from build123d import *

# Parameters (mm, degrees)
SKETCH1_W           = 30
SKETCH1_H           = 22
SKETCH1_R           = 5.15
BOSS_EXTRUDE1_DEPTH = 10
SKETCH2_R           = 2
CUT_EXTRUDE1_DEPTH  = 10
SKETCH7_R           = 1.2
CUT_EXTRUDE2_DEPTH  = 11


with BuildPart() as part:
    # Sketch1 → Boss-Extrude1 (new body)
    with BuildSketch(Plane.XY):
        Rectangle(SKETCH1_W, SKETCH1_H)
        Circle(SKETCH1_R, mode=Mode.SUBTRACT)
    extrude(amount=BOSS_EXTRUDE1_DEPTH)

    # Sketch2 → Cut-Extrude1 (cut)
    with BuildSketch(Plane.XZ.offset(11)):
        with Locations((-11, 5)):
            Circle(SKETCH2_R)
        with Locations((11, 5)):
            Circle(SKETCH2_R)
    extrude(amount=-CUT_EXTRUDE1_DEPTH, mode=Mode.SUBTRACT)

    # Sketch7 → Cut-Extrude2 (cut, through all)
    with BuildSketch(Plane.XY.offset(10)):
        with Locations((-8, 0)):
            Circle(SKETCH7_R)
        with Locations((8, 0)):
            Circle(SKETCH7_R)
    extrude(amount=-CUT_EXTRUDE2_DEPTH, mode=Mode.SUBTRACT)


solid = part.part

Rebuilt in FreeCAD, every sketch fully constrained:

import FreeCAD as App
import Part
import Sketcher

V = App.Vector

doc = App.newDocument("Part")
body = doc.addObject("PartDesign::Body", "Body")

# Sketch on XY plane
sketch1 = body.newObject("Sketcher::SketchObject", "Sketch")
sketch1.AttachmentSupport = (doc.getObject("XY_Plane"), [""])
sketch1.MapMode = "FlatFace"
sketch1.addGeometry(Part.LineSegment(V(-15, 11, 0), V(-15, -11, 0)), False)
sketch1.addGeometry(Part.LineSegment(V(-15, -11, 0), V(15, -11, 0)), False)
sketch1.addGeometry(Part.LineSegment(V(15, -11, 0), V(15, 11, 0)), False)
sketch1.addGeometry(Part.LineSegment(V(15, 11, 0), V(-15, 11, 0)), False)
sketch1.addGeometry(Part.Circle(V(0, 0, 0), V(0, 0, 1), 5), False)
sketch1.addConstraint(Sketcher.Constraint("Coincident", 0, 2, 1, 1))
sketch1.addConstraint(Sketcher.Constraint("Coincident", 1, 2, 2, 1))
sketch1.addConstraint(Sketcher.Constraint("Coincident", 2, 2, 3, 1))
sketch1.addConstraint(Sketcher.Constraint("Coincident", 3, 2, 0, 1))
sketch1.addConstraint(Sketcher.Constraint("Vertical", 0))
sketch1.addConstraint(Sketcher.Constraint("Horizontal", 1))
sketch1.addConstraint(Sketcher.Constraint("Vertical", 2))
sketch1.addConstraint(Sketcher.Constraint("Horizontal", 3))
sketch1.addConstraint(Sketcher.Constraint("Coincident", 4, 3, -1, 1))
sketch1.addConstraint(Sketcher.Constraint("Symmetric", 0, 2, 2, 2, -1, 1))
sketch1.addConstraint(Sketcher.Constraint("Diameter", 4, 10.3))
sketch1.addConstraint(Sketcher.Constraint("DistanceX", 1, 1, 1, 2, 30.0))
sketch1.addConstraint(Sketcher.Constraint("DistanceY", 0, 2, 0, 1, 22.0))
pad1 = body.newObject("PartDesign::Pad", "Pad")
pad1.Profile = sketch1
pad1.Length = 10

# Sketch on XZ plane
sketch2 = body.newObject("Sketcher::SketchObject", "Sketch001")
sketch2.AttachmentSupport = (doc.getObject("XZ_Plane"), [""])
sketch2.MapMode = "FlatFace"
sketch2.AttachmentOffset = App.Placement(V(0, 0, 11), App.Rotation())
sketch2.addGeometry(Part.Circle(V(-11, 5, 0), V(0, 0, 1), 2), False)
sketch2.addGeometry(Part.Circle(V(11, 5, 0), V(0, 0, 1), 2), False)
sketch2.addConstraint(Sketcher.Constraint("Equal", 0, 1))
sketch2.addConstraint(Sketcher.Constraint("Symmetric", 0, 3, 1, 3, -2))
sketch2.addConstraint(Sketcher.Constraint("Diameter", 0, 4.0))
sketch2.addConstraint(Sketcher.Constraint("DistanceX", 0, 3, -1, 1, 11.0))
sketch2.addConstraint(Sketcher.Constraint("DistanceY", -1, 1, 0, 3, 5.0))
pocket1 = body.newObject("PartDesign::Pocket", "Pocket")
pocket1.Profile = sketch2
pocket1.Length = 10

# Sketch on XY plane
sketch3 = body.newObject("Sketcher::SketchObject", "Sketch002")
sketch3.AttachmentSupport = (doc.getObject("XY_Plane"), [""])
sketch3.MapMode = "FlatFace"
sketch3.AttachmentOffset = App.Placement(V(0, 0, 10), App.Rotation())
sketch3.addGeometry(Part.Circle(V(-8, 0, 0), V(0, 0, 1), 1.2), False)
sketch3.addGeometry(Part.Circle(V(8, 0, 0), V(0, 0, 1), 1.2), False)
sketch3.addConstraint(Sketcher.Constraint("Equal", 0, 1))
sketch3.addConstraint(Sketcher.Constraint("Symmetric", 0, 3, 1, 3, -1, 1))
sketch3.addConstraint(Sketcher.Constraint("PointOnObject", 0, 3, -1))
sketch3.addConstraint(Sketcher.Constraint("Diameter", 0, 2.4))
sketch3.addConstraint(Sketcher.Constraint("DistanceX", 0, 3, -1, 1, 8.0))
pocket2 = body.newObject("PartDesign::Pocket", "Pocket001")
pocket2.Profile = sketch3
pocket2.Type = "ThroughAll"

doc.recompute()
